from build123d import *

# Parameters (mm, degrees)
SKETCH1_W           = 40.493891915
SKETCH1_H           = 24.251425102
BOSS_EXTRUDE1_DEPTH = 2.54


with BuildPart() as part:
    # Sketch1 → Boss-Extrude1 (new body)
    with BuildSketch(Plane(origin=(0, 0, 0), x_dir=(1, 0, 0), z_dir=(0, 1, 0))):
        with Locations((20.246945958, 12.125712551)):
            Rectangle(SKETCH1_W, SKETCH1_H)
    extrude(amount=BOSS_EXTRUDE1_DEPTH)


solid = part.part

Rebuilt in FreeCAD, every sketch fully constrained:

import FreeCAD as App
import Part
import Sketcher
Q = App.Units.Quantity

doc = App.newDocument("Part")
body = doc.addObject("PartDesign::Body", "Body")

# Sketch on XZ plane
sketch1 = body.newObject("Sketcher::SketchObject", "Sketch")
sketch1.AttachmentSupport = (doc.getObject("XZ_Plane"), [""])
sketch1.MapMode = "FlatFace"
sketch1.addGeometry([
    Part.LineSegment(App.Vector(0, -24.251425, 0), App.Vector(0, 0, 0)),
    Part.LineSegment(App.Vector(0, 0, 0), App.Vector(40.493892, 0, 0)),
    Part.LineSegment(App.Vector(40.493892, 0, 0), App.Vector(40.493892, -24.251425, 0)),
    Part.LineSegment(App.Vector(40.493892, -24.251425, 0), App.Vector(0, -24.251425, 0)),
], False)
sketch1.addConstraint([
    Sketcher.Constraint("Coincident", 0, 2, 1, 1),
    Sketcher.Constraint("Coincident", 1, 2, 2, 1),
    Sketcher.Constraint("Coincident", 2, 2, 3, 1),
    Sketcher.Constraint("Coincident", 3, 2, 0, 1),
    Sketcher.Constraint("Vertical", 0),
    Sketcher.Constraint("Horizontal", 1),
    Sketcher.Constraint("Vertical", 2),
    Sketcher.Constraint("Horizontal", 3),
    Sketcher.Constraint("Coincident", 0, 2, -1, 1),
    Sketcher.Constraint("DistanceX", 1, 1, 1, 2, 40.493892),
    Sketcher.Constraint("DistanceY", 0, 1, 0, 2, 24.251425),
])
pad1 = body.newObject("PartDesign::Pad", "Pad")
pad1.Profile = sketch1
pad1.Length = Q("0.1 in")
pad1.Reversed = True

doc.recompute()
